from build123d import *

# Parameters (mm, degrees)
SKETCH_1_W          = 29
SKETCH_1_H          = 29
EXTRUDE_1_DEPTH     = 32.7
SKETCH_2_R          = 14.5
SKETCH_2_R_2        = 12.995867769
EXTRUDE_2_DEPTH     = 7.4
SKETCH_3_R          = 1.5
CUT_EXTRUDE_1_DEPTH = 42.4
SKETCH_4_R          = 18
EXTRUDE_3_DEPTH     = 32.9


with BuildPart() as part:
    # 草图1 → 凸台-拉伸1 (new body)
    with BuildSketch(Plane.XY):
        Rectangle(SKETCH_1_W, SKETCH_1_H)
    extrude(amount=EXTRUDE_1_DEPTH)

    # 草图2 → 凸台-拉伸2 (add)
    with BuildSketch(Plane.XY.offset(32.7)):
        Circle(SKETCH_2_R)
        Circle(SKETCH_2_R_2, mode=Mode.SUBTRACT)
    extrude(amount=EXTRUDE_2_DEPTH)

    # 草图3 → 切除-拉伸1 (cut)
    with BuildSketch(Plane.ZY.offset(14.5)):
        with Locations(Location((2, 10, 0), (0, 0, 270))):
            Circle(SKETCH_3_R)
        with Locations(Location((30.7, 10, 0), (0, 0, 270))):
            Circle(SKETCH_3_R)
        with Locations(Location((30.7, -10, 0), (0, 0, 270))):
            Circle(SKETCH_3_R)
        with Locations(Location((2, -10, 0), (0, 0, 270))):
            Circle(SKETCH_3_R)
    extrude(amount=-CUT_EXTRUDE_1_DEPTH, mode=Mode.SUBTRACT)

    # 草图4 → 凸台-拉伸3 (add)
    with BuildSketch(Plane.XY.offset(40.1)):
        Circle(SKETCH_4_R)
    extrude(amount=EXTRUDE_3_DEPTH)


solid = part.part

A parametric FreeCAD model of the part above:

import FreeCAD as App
import Part
import Sketcher
Q = App.Units.Quantity

doc = App.newDocument("Part")
body = doc.addObject("PartDesign::Body", "Body")

# Sketch on XY plane
sketch1 = body.newObject("Sketcher::SketchObject", "Sketch")
sketch1.AttachmentSupport = (doc.getObject("XY_Plane"), [""])
sketch1.MapMode = "FlatFace"
sketch1.addGeometry([
    Part.LineSegment(App.Vector(-14, 14, 0), App.Vector(-14, -14, 0)),
    Part.LineSegment(App.Vector(-14, -14, 0), App.Vector(14, -14, 0)),
    Part.LineSegment(App.Vector(14, -14, 0), App.Vector(14, 14, 0)),
    Part.LineSegment(App.Vector(14, 14, 0), App.Vector(-14, 14, 0)),
], False)
sketch1.addConstraint([
    Sketcher.Constraint("Coincident", 0, 2, 1, 1),
    Sketcher.Constraint("Coincident", 1, 2, 2, 1),
    Sketcher.Constraint("Coincident", 2, 2, 3, 1),
    Sketcher.Constraint("Coincident", 3, 2, 0, 1),
    Sketcher.Constraint("Vertical", 0),
    Sketcher.Constraint("Horizontal", 1),
    Sketcher.Constraint("Vertical", 2),
    Sketcher.Constraint("Horizontal", 3),
    Sketcher.Constraint("Symmetric", 0, 2, 2, 2, -1, 1),
    Sketcher.Constraint("Equal", 3, 0),
    Sketcher.Constraint("DistanceX", 1, 1, 1, 2, Q("29 mm")),
])
pad1 = body.newObject("PartDesign::Pad", "Pad")
pad1.Profile = sketch1
pad1.Length = 32.7

# Sketch on XY plane
sketch2 = body.newObject("Sketcher::SketchObject", "Sketch001")
sketch2.AttachmentSupport = (doc.getObject("XY_Plane"), [""])
sketch2.MapMode = "FlatFace"
sketch2.AttachmentOffset = App.Placement(App.Vector(0, 0, 32.7), App.Rotation())
sketch2.addGeometry([
    Part.Circle(App.Vector(0, 0, 0), App.Vector(0, 0, 1), 14),
    Part.Circle(App.Vector(0, 0, 0), App.Vector(0, 0, 1), 13),
], False)
sketch2.addConstraint([
    Sketcher.Constraint("Coincident", 0, 3, -1, 1),
    Sketcher.Constraint("Coincident", 1, 3, -1, 1),
    Sketcher.Constraint("Diameter", 0, Q("29 mm")),
    Sketcher.Constraint("Diameter", 1, Q("25.991736 mm")),
])
pad2 = body.newObject("PartDesign::Pad", "Pad001")
pad2.Profile = sketch2
pad2.Length = 7.4

# Sketch on YZ plane
sketch3 = body.newObject("Sketcher::SketchObject", "Sketch002")
sketch3.AttachmentSupport = (doc.getObject("YZ_Plane"), [""])
sketch3.MapMode = "FlatFace"
sketch3.AttachmentOffset = App.Placement(App.Vector(0, 0, -14.5), App.Rotation())
sketch3.addGeometry([
    Part.Circle(App.Vector(10, 2, 0), App.Vector(0, 0, 1), 1.5),
    Part.Circle(App.Vector(10, 30.7, 0), App.Vector(0, 0, 1), 1.5),
    Part.Circle(App.Vector(-10, 30.7, 0), App.Vector(0, 0, 1), 1.5),
    Part.Circle(App.Vector(-10, 2, 0), App.Vector(0, 0, 1), 1.5),
], False)
sketch3.addConstraint([
    Sketcher.Constraint("Equal", 0, 1),
    Sketcher.Constraint("Equal", 1, 2),
    Sketcher.Constraint("Equal", 2, 3),
    Sketcher.Constraint("Symmetric", 1, 3, 2, 3, -2),
    Sketcher.Constraint("Symmetric", 0, 3, 3, 3, -2),
    Sketcher.Constraint("Vertical", 0, 3, 1, 3),
    Sketcher.Constraint("Diameter", 0, Q("3 mm")),
    Sketcher.Constraint("DistanceX", -1, 1, 0, 3, Q("10 mm")),
    Sketcher.Constraint("DistanceY", -1, 1, 0, 3, Q("2 mm")),
    Sketcher.Constraint("DistanceY", -1, 1, 1, 3, Q("30.7 mm")),
])
pocket1 = body.newObject("PartDesign::Pocket", "Pocket")
pocket1.Profile = sketch3
pocket1.Length = 42.4
pocket1.Reversed = True

# Sketch on XY plane
sketch4 = body.newObject("Sketcher::SketchObject", "Sketch003")
sketch4.AttachmentSupport = (doc.getObject("XY_Plane"), [""])
sketch4.MapMode = "FlatFace"
sketch4.AttachmentOffset = App.Placement(App.Vector(0, 0, 40.1), App.Rotation())
sketch4.addGeometry(Part.Circle(App.Vector(0, 0, 0), App.Vector(0, 0, 1), 18), False)
sketch4.addConstraint([
    Sketcher.Constraint("Coincident", 0, 3, -1, 1),
    Sketcher.Constraint("Diameter", 0, Q("36 mm")),
])
pad3 = body.newObject("PartDesign::Pad", "Pad002")
pad3.Profile = sketch4
pad3.Length = 32.9

doc.recompute()
